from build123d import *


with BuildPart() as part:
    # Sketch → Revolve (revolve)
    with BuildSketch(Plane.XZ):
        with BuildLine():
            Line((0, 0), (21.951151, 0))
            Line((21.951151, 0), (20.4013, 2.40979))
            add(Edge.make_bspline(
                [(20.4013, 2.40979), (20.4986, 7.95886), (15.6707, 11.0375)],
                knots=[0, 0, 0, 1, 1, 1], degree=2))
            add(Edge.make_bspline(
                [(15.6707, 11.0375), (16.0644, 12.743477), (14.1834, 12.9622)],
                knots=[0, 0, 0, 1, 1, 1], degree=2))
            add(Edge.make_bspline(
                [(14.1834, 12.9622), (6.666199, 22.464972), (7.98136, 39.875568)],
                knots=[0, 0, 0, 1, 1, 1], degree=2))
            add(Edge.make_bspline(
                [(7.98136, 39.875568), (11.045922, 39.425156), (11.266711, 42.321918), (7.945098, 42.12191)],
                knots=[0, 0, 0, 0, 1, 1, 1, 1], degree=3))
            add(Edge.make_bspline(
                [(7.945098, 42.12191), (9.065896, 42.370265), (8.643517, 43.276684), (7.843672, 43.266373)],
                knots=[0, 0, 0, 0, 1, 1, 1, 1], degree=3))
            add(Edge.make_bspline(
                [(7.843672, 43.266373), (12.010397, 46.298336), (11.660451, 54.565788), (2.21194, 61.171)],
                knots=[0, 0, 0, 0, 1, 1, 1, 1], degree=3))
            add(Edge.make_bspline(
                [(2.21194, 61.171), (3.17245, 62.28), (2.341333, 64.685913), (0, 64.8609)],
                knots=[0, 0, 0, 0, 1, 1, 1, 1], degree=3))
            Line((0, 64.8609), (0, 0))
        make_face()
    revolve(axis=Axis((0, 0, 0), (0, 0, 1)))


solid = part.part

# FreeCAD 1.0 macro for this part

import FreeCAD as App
import Part
import Sketcher
from FreeCAD import Vector

doc = App.newDocument("Part")
body = doc.addObject("PartDesign::Body", "Body")

# Sketch on XZ plane
sketch1 = body.newObject("Sketcher::SketchObject", "Sketch")
sketch1.AttachmentSupport = (doc.getObject("XZ_Plane"), [""])
sketch1.MapMode = "FlatFace"
sketch1.addGeometry(Part.LineSegment(Vector(0, 0, 0), Vector(21.951151, 0, 0)), False)
sketch1.addGeometry(Part.LineSegment(Vector(21.951151, 0, 0), Vector(20.4013, 2.40979, 0)), False)
sketch1.addGeometry(Part.BSplineCurve([Vector(20.4013, 2.40979, 0), Vector(20.4986, 7.95886, 0), Vector(15.6707, 11.0375, 0)], [3, 3], [0, 1], False, 2, [1, 1, 1], False), False)
sketch1.addGeometry(Part.BSplineCurve([Vector(15.6707, 11.0375, 0), Vector(16.0644, 12.743477, 0), Vector(14.1834, 12.9622, 0)], [3, 3], [0, 1], False, 2, [1, 1, 1], False), False)
sketch1.addGeometry(Part.BSplineCurve([Vector(14.1834, 12.9622, 0), Vector(6.666199, 22.464972, 0), Vector(7.98136, 39.875568, 0)], [3, 3], [0, 1], False, 2, [1, 1, 1], False), False)
sketch1.addGeometry(Part.BSplineCurve([Vector(7.98136, 39.875568, 0), Vector(11.045922, 39.425156, 0), Vector(11.266711, 42.321918, 0), Vector(7.945098, 42.12191, 0)], [4, 4], [0, 1], False, 3, [1, 1, 1, 1], False), False)
sketch1.addGeometry(Part.BSplineCurve([Vector(7.945098, 42.12191, 0), Vector(9.065896, 42.370265, 0), Vector(8.643517, 43.276684, 0), Vector(7.843672, 43.266373, 0)], [4, 4], [0, 1], False, 3, [1, 1, 1, 1], False), False)
sketch1.addGeometry(Part.BSplineCurve([Vector(7.843672, 43.266373, 0), Vector(12.010397, 46.298336, 0), Vector(11.660451, 54.565788, 0), Vector(2.21194, 61.171, 0)], [4, 4], [0, 1], False, 3, [1, 1, 1, 1], False), False)
sketch1.addGeometry(Part.BSplineCurve([Vector(2.21194, 61.171, 0), Vector(3.17245, 62.28, 0), Vector(2.341333, 64.685913, 0), Vector(0, 64.8609, 0)], [4, 4], [0, 1], False, 3, [1, 1, 1, 1], False), False)
sketch1.addGeometry(Part.LineSegment(Vector(0, 64.8609, 0), Vector(0, 0, 0)), False)
sketch1.addConstraint(Sketcher.Constraint("Block", 2))
sketch1.addConstraint(Sketcher.Constraint("Block", 3))
sketch1.addConstraint(Sketcher.Constraint("Block", 4))
sketch1.addConstraint(Sketcher.Constraint("Block", 5))
sketch1.addConstraint(Sketcher.Constraint("Block", 6))
sketch1.addConstraint(Sketcher.Constraint("Block", 7))
sketch1.addConstraint(Sketcher.Constraint("Block", 8))
sketch1.addConstraint(Sketcher.Constraint("Coincident", 0, 2, 1, 1))
sketch1.addConstraint(Sketcher.Constraint("Coincident", 1, 2, 2, 1))
sketch1.addConstraint(Sketcher.Constraint("Coincident", 8, 2, 9, 1))
sketch1.addConstraint(Sketcher.Constraint("Coincident", 9, 2, 0, 1))
sketch1.addConstraint(Sketcher.Constraint("Horizontal", 0))
sketch1.addConstraint(Sketcher.Constraint("Vertical", 9))
sketch1.addConstraint(Sketcher.Constraint("PointOnObject", 0, 2, -1))
sketch1.addConstraint(Sketcher.Constraint("DistanceX", 0, 1, 0, 2, 21.951151))
revolution = body.newObject("PartDesign::Revolution", "Revolution")
revolution.Profile = sketch1
revolution.ReferenceAxis = (sketch1, ["V_Axis"])
revolution.Angle = 360

doc.recompute()
